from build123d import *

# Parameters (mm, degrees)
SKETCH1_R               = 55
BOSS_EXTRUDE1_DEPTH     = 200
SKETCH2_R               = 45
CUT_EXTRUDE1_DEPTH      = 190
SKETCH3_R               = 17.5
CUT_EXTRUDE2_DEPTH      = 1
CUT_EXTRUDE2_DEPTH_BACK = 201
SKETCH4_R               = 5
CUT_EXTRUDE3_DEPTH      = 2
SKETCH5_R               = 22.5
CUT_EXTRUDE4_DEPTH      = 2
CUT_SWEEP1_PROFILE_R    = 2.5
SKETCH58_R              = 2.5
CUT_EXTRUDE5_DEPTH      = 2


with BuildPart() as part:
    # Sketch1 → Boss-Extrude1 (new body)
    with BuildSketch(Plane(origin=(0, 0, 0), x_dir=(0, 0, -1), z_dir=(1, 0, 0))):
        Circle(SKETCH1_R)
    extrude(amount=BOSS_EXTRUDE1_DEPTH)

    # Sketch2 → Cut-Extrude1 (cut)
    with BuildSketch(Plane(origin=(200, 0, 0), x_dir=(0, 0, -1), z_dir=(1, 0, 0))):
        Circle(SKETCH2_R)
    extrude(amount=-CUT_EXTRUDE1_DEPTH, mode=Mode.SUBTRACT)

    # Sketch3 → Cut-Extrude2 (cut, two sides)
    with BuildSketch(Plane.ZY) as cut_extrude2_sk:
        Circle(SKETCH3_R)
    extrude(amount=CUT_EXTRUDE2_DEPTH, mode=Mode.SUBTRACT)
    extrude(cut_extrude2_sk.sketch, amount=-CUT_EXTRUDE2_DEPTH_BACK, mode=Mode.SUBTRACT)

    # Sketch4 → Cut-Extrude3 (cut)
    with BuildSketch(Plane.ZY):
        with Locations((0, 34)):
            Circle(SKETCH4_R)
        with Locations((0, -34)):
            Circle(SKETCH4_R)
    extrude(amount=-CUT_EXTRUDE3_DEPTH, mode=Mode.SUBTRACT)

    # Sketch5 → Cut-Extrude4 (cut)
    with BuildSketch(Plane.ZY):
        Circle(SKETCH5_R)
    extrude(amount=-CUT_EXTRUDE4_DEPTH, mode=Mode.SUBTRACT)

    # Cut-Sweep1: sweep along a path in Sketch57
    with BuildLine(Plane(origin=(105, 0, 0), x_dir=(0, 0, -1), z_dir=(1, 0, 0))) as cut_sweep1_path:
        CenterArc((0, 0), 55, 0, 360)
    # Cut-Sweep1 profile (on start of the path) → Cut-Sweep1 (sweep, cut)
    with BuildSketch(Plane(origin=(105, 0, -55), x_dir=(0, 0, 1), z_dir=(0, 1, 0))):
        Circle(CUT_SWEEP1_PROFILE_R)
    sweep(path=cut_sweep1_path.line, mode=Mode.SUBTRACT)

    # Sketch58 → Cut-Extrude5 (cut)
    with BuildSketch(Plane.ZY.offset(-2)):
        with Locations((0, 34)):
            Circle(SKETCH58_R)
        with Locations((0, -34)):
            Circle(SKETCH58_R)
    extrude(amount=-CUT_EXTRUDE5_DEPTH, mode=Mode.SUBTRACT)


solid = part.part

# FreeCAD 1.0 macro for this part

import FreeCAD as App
import Part
import Sketcher

V = App.Vector

doc = App.newDocument("Part")
params = doc.addObject("Spreadsheet::Sheet", "Params")
for row, (alias, value) in enumerate([
    ("sketch1_diameter", "110 mm"),
    ("pad1_length", "200 mm"),
    ("sketch2_diameter", "90 mm"),
    ("pocket1_length", "190 mm"),
    ("sketch3_diameter", "35 mm"),
    ("sketch4_diameter", "10 mm"),
    ("pocket3_length", "2 mm"),
    ("sketch5_diameter", "45 mm"),
    ("pocket4_length", "2 mm"),
    ("sketch6_diameter", "5 mm"),
    ("sketch7_diameter", "110 mm"),
    ("sketch8_diameter", "5 mm"),
    ("pocket5_length", "2 mm"),
], start=1):
    params.set(f"A{row}", alias)
    params.set(f"B{row}", "=" + value)
    params.setAlias(f"B{row}", alias)

body = doc.addObject("PartDesign::Body", "Body")

# Sketch on YZ plane
sketch1 = doc.addObject("Sketcher::SketchObject", "Sketch")
body.addObject(sketch1)
sketch1.AttachmentSupport = (doc.YZ_Plane, [""])
sketch1.MapMode = "FlatFace"
sketch1.addGeometry(Part.Circle(V(0, 0, 0), V(0, 0, 1), 55), False)
sketch1.addConstraint([
    Sketcher.Constraint("Coincident", 0, 3, -1, 1),
    Sketcher.Constraint("Diameter", 0, 110.0),
])
sketch1.setExpression("Constraints[1]", "Params.sketch1_diameter")
pad1 = doc.addObject("PartDesign::Pad", "Pad")
body.addObject(pad1)
pad1.Profile = sketch1
pad1.setExpression("Length", "Params.pad1_length")

# Sketch on YZ plane
sketch2 = doc.addObject("Sketcher::SketchObject", "Sketch001")
body.addObject(sketch2)
sketch2.AttachmentSupport = (doc.YZ_Plane, [""])
sketch2.MapMode = "FlatFace"
sketch2.AttachmentOffset = App.Placement(V(0, 0, 200), App.Rotation())
sketch2.addGeometry(Part.Circle(V(0, 0, 0), V(0, 0, 1), 45), False)
sketch2.addConstraint([
    Sketcher.Constraint("Coincident", 0, 3, -1, 1),
    Sketcher.Constraint("Diameter", 0, 90.0),
])
sketch2.setExpression("Constraints[1]", "Params.sketch2_diameter")
pocket1 = doc.addObject("PartDesign::Pocket", "Pocket")
body.addObject(pocket1)
pocket1.Profile = sketch2
pocket1.setExpression("Length", "Params.pocket1_length")

# Sketch on YZ plane
sketch3 = doc.addObject("Sketcher::SketchObject", "Sketch002")
body.addObject(sketch3)
sketch3.AttachmentSupport = (doc.YZ_Plane, [""])
sketch3.MapMode = "FlatFace"
sketch3.addGeometry(Part.Circle(V(0, 0, 0), V(0, 0, 1), 18), False)
sketch3.addConstraint([
    Sketcher.Constraint("Coincident", 0, 3, -1, 1),
    Sketcher.Constraint("Diameter", 0, 35.0),
])
sketch3.setExpression("Constraints[1]", "Params.sketch3_diameter")
pocket2 = doc.addObject("PartDesign::Pocket", "Pocket001")
body.addObject(pocket2)
pocket2.Profile = sketch3
pocket2.Type = "ThroughAll"
pocket2.Midplane = True

# Sketch on YZ plane
sketch4 = doc.addObject("Sketcher::SketchObject", "Sketch003")
body.addObject(sketch4)
sketch4.AttachmentSupport = (doc.YZ_Plane, [""])
sketch4.MapMode = "FlatFace"
sketch4.addGeometry([
    Part.Circle(V(34, 0, 0), V(0, 0, 1), 5),
    Part.Circle(V(-34, 0, 0), V(0, 0, 1), 5),
], False)
sketch4.addConstraint([
    Sketcher.Constraint("Equal", 0, 1),
    Sketcher.Constraint("Symmetric", 0, 3, 1, 3, -1, 1),
    Sketcher.Constraint("PointOnObject", 0, 3, -1),
    Sketcher.Constraint("Diameter", 0, 10.0),
    Sketcher.Constraint("DistanceX", -1, 1, 0, 3, 34.0),
])
sketch4.setExpression("Constraints[3]", "Params.sketch4_diameter")
pocket3 = doc.addObject("PartDesign::Pocket", "Pocket002")
body.addObject(pocket3)
pocket3.Profile = sketch4
pocket3.setExpression("Length", "Params.pocket3_length")
pocket3.Reversed = True

# Sketch on YZ plane
sketch5 = doc.addObject("Sketcher::SketchObject", "Sketch004")
body.addObject(sketch5)
sketch5.AttachmentSupport = (doc.YZ_Plane, [""])
sketch5.MapMode = "FlatFace"
sketch5.addGeometry(Part.Circle(V(0, 0, 0), V(0, 0, 1), 22), False)
sketch5.addConstraint([
    Sketcher.Constraint("Coincident", 0, 3, -1, 1),
    Sketcher.Constraint("Diameter", 0, 45.0),
])
sketch5.setExpression("Constraints[1]", "Params.sketch5_diameter")
pocket4 = doc.addObject("PartDesign::Pocket", "Pocket003")
body.addObject(pocket4)
pocket4.Profile = sketch5
pocket4.setExpression("Length", "Params.pocket4_length")
pocket4.Reversed = True

# Sketch on XZ plane
sketch6 = doc.addObject("Sketcher::SketchObject", "Sketch005")
body.addObject(sketch6)
sketch6.AttachmentSupport = (doc.XZ_Plane, [""])
sketch6.MapMode = "FlatFace"
sketch6.addGeometry(Part.Circle(V(105, -55, 0), V(0, 0, 1), 2.5), False)
sketch6.addConstraint([
    Sketcher.Constraint("Diameter", 0, 5.0),
    Sketcher.Constraint("DistanceX", -1, 1, 0, 3, 105.0),
    Sketcher.Constraint("DistanceY", 0, 3, -1, 1, 55.0),
])
sketch6.setExpression("Constraints[0]", "Params.sketch6_diameter")

# Sketch on YZ plane
sketch7 = doc.addObject("Sketcher::SketchObject", "Sketch006")
body.addObject(sketch7)
sketch7.AttachmentSupport = (doc.YZ_Plane, [""])
sketch7.MapMode = "FlatFace"
sketch7.AttachmentOffset = App.Placement(V(0, 0, 105), App.Rotation())
sketch7.addGeometry(Part.Circle(V(0, 0, 0), V(0, 0, 1), 55), False)
sketch7.addConstraint([
    Sketcher.Constraint("Coincident", 0, 3, -1, 1),
    Sketcher.Constraint("Diameter", 0, 110.0),
])
sketch7.setExpression("Constraints[1]", "Params.sketch7_diameter")
doc.recompute()

subtractivepipe = doc.addObject("PartDesign::SubtractivePipe", "SubtractivePipe")
body.addObject(subtractivepipe)
subtractivepipe.Profile = sketch6
subtractivepipe.Spine = (sketch7, ["Edge1"])

# Sketch on YZ plane
sketch8 = doc.addObject("Sketcher::SketchObject", "Sketch007")
body.addObject(sketch8)
sketch8.AttachmentSupport = (doc.YZ_Plane, [""])
sketch8.MapMode = "FlatFace"
sketch8.AttachmentOffset = App.Placement(V(0, 0, 2), App.Rotation())
sketch8.addGeometry([
    Part.Circle(V(34, 0, 0), V(0, 0, 1), 2.5),
    Part.Circle(V(-34, 0, 0), V(0, 0, 1), 2.5),
], False)
sketch8.addConstraint([
    Sketcher.Constraint("Equal", 0, 1),
    Sketcher.Constraint("Symmetric", 0, 3, 1, 3, -1, 1),
    Sketcher.Constraint("PointOnObject", 0, 3, -1),
    Sketcher.Constraint("Diameter", 0, 5.0),
    Sketcher.Constraint("DistanceX", -1, 1, 0, 3, 34.0),
])
sketch8.setExpression("Constraints[3]", "Params.sketch8_diameter")
pocket5 = doc.addObject("PartDesign::Pocket", "Pocket004")
body.addObject(pocket5)
pocket5.Profile = sketch8
pocket5.setExpression("Length", "Params.pocket5_length")
pocket5.Reversed = True

doc.recompute()
